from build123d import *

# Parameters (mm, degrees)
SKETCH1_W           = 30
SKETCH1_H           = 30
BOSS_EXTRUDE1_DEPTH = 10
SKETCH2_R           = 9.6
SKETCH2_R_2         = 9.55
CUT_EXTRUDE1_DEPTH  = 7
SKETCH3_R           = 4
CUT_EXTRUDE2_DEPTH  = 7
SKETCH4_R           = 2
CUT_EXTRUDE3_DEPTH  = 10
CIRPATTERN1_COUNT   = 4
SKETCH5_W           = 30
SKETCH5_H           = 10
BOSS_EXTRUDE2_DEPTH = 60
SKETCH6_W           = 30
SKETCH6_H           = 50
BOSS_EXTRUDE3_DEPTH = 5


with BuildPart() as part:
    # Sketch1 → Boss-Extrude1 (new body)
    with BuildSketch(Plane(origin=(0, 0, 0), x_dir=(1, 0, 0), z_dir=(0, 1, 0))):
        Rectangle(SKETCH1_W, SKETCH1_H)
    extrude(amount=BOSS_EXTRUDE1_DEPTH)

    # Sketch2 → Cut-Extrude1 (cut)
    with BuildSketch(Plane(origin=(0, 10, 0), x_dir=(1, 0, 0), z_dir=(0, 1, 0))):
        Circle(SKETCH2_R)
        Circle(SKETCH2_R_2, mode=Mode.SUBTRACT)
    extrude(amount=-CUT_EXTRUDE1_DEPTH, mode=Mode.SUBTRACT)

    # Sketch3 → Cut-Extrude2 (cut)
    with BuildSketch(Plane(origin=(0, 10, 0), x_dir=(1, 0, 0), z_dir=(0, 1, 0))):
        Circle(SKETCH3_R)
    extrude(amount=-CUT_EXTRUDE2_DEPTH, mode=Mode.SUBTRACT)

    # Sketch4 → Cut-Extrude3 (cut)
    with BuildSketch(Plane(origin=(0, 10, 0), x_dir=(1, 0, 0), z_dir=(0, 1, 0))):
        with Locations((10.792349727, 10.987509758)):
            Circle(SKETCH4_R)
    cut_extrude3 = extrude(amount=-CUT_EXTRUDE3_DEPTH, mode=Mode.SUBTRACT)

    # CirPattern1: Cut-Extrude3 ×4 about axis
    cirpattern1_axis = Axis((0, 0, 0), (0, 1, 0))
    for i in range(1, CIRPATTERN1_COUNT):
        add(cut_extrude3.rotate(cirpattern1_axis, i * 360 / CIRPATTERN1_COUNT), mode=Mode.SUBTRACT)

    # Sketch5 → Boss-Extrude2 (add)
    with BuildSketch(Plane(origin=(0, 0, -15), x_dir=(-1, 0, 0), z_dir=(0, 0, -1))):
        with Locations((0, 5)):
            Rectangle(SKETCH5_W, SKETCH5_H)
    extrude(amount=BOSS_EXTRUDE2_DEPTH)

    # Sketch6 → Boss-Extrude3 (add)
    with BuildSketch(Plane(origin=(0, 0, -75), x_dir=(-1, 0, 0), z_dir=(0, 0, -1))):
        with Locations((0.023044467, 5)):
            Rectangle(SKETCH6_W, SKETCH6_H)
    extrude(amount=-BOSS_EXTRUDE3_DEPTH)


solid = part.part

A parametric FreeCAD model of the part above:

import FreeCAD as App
import Part
import Sketcher

V = App.Vector
Q = App.Units.Quantity

doc = App.newDocument("Part")
params = doc.addObject("Spreadsheet::Sheet", "Params")
for row, (alias, value) in enumerate([
    ("sketch1_width", "30 mm"),
    ("pad1_length", "10 mm"),
    ("sketch2_diameter", "19.2 mm"),
    ("sketch2_diameter2", "19.1 mm"),
    ("pocket1_length", "7 mm"),
    ("sketch3_diameter", "8 mm"),
    ("pocket2_length", "7 mm"),
    ("sketch4_diameter", "4 mm"),
    ("pocket3_length", "10 mm"),
    ("sketch5_width", "30 mm"),
    ("sketch5_height", "10 mm"),
    ("pad2_length", "60 mm"),
    ("sketch6_width", "30 mm"),
    ("sketch6_height", "50 mm"),
    ("pad3_length", "5 mm"),
], start=1):
    params.set(f"A{row}", alias)
    params.set(f"B{row}", "=" + value)
    params.setAlias(f"B{row}", alias)

body = doc.addObject("PartDesign::Body", "Body")

# Sketch on XZ plane
sketch1 = doc.addObject("Sketcher::SketchObject", "Sketch")
body.addObject(sketch1)
sketch1.AttachmentSupport = (doc.XZ_Plane, [""])
sketch1.MapMode = "FlatFace"
sketch1.addGeometry([
    Part.LineSegment(V(-15, -15, 0), V(-15, 15, 0)),
    Part.LineSegment(V(-15, 15, 0), V(15, 15, 0)),
    Part.LineSegment(V(15, 15, 0), V(15, -15, 0)),
    Part.LineSegment(V(15, -15, 0), V(-15, -15, 0)),
], False)
sketch1.addConstraint([
    Sketcher.Constraint("Coincident", 0, 2, 1, 1),
    Sketcher.Constraint("Coincident", 1, 2, 2, 1),
    Sketcher.Constraint("Coincident", 2, 2, 3, 1),
    Sketcher.Constraint("Coincident", 3, 2, 0, 1),
    Sketcher.Constraint("Vertical", 0),
    Sketcher.Constraint("Horizontal", 1),
    Sketcher.Constraint("Vertical", 2),
    Sketcher.Constraint("Horizontal", 3),
    Sketcher.Constraint("Symmetric", 0, 2, 2, 2, -1, 1),
    Sketcher.Constraint("Equal", 3, 0),
    Sketcher.Constraint("DistanceX", 1, 1, 1, 2, Q("30 mm")),
])
sketch1.setExpression("Constraints[10]", "Params.sketch1_width")
pad1 = doc.addObject("PartDesign::Pad", "Pad")
body.addObject(pad1)
pad1.Profile = sketch1
pad1.setExpression("Length", "Params.pad1_length")
pad1.Reversed = True

# Sketch on XZ plane
sketch2 = doc.addObject("Sketcher::SketchObject", "Sketch001")
body.addObject(sketch2)
sketch2.AttachmentSupport = (doc.XZ_Plane, [""])
sketch2.MapMode = "FlatFace"
sketch2.AttachmentOffset = App.Placement(V(0, 0, -10), App.Rotation())
sketch2.addGeometry([
    Part.Circle(V(0, 0, 0), V(0, 0, 1), 10),
    Part.Circle(V(0, 0, 0), V(0, 0, 1), 10),
], False)
sketch2.addConstraint([
    Sketcher.Constraint("Coincident", 0, 3, -1, 1),
    Sketcher.Constraint("Coincident", 1, 3, -1, 1),
    Sketcher.Constraint("Diameter", 0, Q("19.2 mm")),
    Sketcher.Constraint("Diameter", 1, Q("19.1 mm")),
])
sketch2.setExpression("Constraints[2]", "Params.sketch2_diameter")
sketch2.setExpression("Constraints[3]", "Params.sketch2_diameter2")
pocket1 = doc.addObject("PartDesign::Pocket", "Pocket")
body.addObject(pocket1)
pocket1.Profile = sketch2
pocket1.setExpression("Length", "Params.pocket1_length")
pocket1.Reversed = True

# Sketch on XZ plane
sketch3 = doc.addObject("Sketcher::SketchObject", "Sketch002")
body.addObject(sketch3)
sketch3.AttachmentSupport = (doc.XZ_Plane, [""])
sketch3.MapMode = "FlatFace"
sketch3.AttachmentOffset = App.Placement(V(0, 0, -10), App.Rotation())
sketch3.addGeometry(Part.Circle(V(0, 0, 0), V(0, 0, 1), 4), False)
sketch3.addConstraint([
    Sketcher.Constraint("Coincident", 0, 3, -1, 1),
    Sketcher.Constraint("Diameter", 0, Q("8 mm")),
])
sketch3.setExpression("Constraints[1]", "Params.sketch3_diameter")
pocket2 = doc.addObject("PartDesign::Pocket", "Pocket001")
body.addObject(pocket2)
pocket2.Profile = sketch3
pocket2.setExpression("Length", "Params.pocket2_length")
pocket2.Reversed = True

# Sketch on XZ plane
sketch4 = doc.addObject("Sketcher::SketchObject", "Sketch003")
body.addObject(sketch4)
sketch4.AttachmentSupport = (doc.XZ_Plane, [""])
sketch4.MapMode = "FlatFace"
sketch4.AttachmentOffset = App.Placement(V(0, 0, -10), App.Rotation())
sketch4.addGeometry(Part.Circle(V(10.8, -11, 0), V(0, 0, 1), 2), False)
sketch4.addConstraint([
    Sketcher.Constraint("Diameter", 0, Q("4 mm")),
    Sketcher.Constraint("DistanceX", -1, 1, 0, 3, Q("10.79235 mm")),
    Sketcher.Constraint("DistanceY", 0, 3, -1, 1, Q("10.98751 mm")),
])
sketch4.setExpression("Constraints[0]", "Params.sketch4_diameter")
pocket3 = doc.addObject("PartDesign::Pocket", "Pocket002")
body.addObject(pocket3)
pocket3.Profile = sketch4
pocket3.setExpression("Length", "Params.pocket3_length")
pocket3.Reversed = True
doc.recompute()

polarpattern = doc.addObject("PartDesign::PolarPattern", "PolarPattern")
body.addObject(polarpattern)
polarpattern.Originals = [pocket3]
polarpattern.Axis = (doc.Y_Axis, [""])
polarpattern.Angle = 360
polarpattern.Occurrences = 4
body.Tip = polarpattern

# Sketch on XY plane
sketch5 = doc.addObject("Sketcher::SketchObject", "Sketch004")
body.addObject(sketch5)
sketch5.AttachmentSupport = (doc.XY_Plane, [""])
sketch5.MapMode = "FlatFace"
sketch5.AttachmentOffset = App.Placement(V(0, 0, -15), App.Rotation())
sketch5.addGeometry([
    Part.LineSegment(V(15, 10, 0), V(15, 0, 0)),
    Part.LineSegment(V(15, 0, 0), V(-15, 0, 0)),
    Part.LineSegment(V(-15, 0, 0), V(-15, 10, 0)),
    Part.LineSegment(V(-15, 10, 0), V(15, 10, 0)),
], False)
sketch5.addConstraint([
    Sketcher.Constraint("Coincident", 0, 2, 1, 1),
    Sketcher.Constraint("Coincident", 1, 2, 2, 1),
    Sketcher.Constraint("Coincident", 2, 2, 3, 1),
    Sketcher.Constraint("Coincident", 3, 2, 0, 1),
    Sketcher.Constraint("Vertical", 0),
    Sketcher.Constraint("Horizontal", 1),
    Sketcher.Constraint("Vertical", 2),
    Sketcher.Constraint("Horizontal", 3),
    Sketcher.Constraint("Symmetric", 0, 2, 1, 2, -1, 1),
    Sketcher.Constraint("DistanceX", 1, 2, 1, 1, Q("30 mm")),
    Sketcher.Constraint("DistanceY", 0, 2, 0, 1, Q("10 mm")),
])
sketch5.setExpression("Constraints[9]", "Params.sketch5_width")
sketch5.setExpression("Constraints[10]", "Params.sketch5_height")
pad2 = doc.addObject("PartDesign::Pad", "Pad001")
body.addObject(pad2)
pad2.Profile = sketch5
pad2.setExpression("Length", "Params.pad2_length")
pad2.Reversed = True

# Sketch on XY plane
sketch6 = doc.addObject("Sketcher::SketchObject", "Sketch005")
body.addObject(sketch6)
sketch6.AttachmentSupport = (doc.XY_Plane, [""])
sketch6.MapMode = "FlatFace"
sketch6.AttachmentOffset = App.Placement(V(0, 0, -75), App.Rotation())
sketch6.addGeometry([
    Part.LineSegment(V(15, 30, 0), V(15, -20, 0)),
    Part.LineSegment(V(15, -20, 0), V(-15, -20, 0)),
    Part.LineSegment(V(-15, -20, 0), V(-15, 30, 0)),
    Part.LineSegment(V(-15, 30, 0), V(15, 30, 0)),
], False)
sketch6.addConstraint([
    Sketcher.Constraint("Coincident", 0, 2, 1, 1),
    Sketcher.Constraint("Coincident", 1, 2, 2, 1),
    Sketcher.Constraint("Coincident", 2, 2, 3, 1),
    Sketcher.Constraint("Coincident", 3, 2, 0, 1),
    Sketcher.Constraint("Vertical", 0),
    Sketcher.Constraint("Horizontal", 1),
    Sketcher.Constraint("Vertical", 2),
    Sketcher.Constraint("Horizontal", 3),
    Sketcher.Constraint("DistanceX", 1, 2, 1, 1, Q("30 mm")),
    Sketcher.Constraint("DistanceY", 0, 2, 0, 1, Q("50 mm")),
    Sketcher.Constraint("DistanceY", 0, 2, -1, 1, Q("20 mm")),
    Sketcher.Constraint("DistanceX", -1, 1, 0, 2, Q("14.976956 mm")),
])
sketch6.setExpression("Constraints[8]", "Params.sketch6_width")
sketch6.setExpression("Constraints[9]", "Params.sketch6_height")
pad3 = doc.addObject("PartDesign::Pad", "Pad002")
body.addObject(pad3)
pad3.Profile = sketch6
pad3.setExpression("Length", "Params.pad3_length")

doc.recompute()
